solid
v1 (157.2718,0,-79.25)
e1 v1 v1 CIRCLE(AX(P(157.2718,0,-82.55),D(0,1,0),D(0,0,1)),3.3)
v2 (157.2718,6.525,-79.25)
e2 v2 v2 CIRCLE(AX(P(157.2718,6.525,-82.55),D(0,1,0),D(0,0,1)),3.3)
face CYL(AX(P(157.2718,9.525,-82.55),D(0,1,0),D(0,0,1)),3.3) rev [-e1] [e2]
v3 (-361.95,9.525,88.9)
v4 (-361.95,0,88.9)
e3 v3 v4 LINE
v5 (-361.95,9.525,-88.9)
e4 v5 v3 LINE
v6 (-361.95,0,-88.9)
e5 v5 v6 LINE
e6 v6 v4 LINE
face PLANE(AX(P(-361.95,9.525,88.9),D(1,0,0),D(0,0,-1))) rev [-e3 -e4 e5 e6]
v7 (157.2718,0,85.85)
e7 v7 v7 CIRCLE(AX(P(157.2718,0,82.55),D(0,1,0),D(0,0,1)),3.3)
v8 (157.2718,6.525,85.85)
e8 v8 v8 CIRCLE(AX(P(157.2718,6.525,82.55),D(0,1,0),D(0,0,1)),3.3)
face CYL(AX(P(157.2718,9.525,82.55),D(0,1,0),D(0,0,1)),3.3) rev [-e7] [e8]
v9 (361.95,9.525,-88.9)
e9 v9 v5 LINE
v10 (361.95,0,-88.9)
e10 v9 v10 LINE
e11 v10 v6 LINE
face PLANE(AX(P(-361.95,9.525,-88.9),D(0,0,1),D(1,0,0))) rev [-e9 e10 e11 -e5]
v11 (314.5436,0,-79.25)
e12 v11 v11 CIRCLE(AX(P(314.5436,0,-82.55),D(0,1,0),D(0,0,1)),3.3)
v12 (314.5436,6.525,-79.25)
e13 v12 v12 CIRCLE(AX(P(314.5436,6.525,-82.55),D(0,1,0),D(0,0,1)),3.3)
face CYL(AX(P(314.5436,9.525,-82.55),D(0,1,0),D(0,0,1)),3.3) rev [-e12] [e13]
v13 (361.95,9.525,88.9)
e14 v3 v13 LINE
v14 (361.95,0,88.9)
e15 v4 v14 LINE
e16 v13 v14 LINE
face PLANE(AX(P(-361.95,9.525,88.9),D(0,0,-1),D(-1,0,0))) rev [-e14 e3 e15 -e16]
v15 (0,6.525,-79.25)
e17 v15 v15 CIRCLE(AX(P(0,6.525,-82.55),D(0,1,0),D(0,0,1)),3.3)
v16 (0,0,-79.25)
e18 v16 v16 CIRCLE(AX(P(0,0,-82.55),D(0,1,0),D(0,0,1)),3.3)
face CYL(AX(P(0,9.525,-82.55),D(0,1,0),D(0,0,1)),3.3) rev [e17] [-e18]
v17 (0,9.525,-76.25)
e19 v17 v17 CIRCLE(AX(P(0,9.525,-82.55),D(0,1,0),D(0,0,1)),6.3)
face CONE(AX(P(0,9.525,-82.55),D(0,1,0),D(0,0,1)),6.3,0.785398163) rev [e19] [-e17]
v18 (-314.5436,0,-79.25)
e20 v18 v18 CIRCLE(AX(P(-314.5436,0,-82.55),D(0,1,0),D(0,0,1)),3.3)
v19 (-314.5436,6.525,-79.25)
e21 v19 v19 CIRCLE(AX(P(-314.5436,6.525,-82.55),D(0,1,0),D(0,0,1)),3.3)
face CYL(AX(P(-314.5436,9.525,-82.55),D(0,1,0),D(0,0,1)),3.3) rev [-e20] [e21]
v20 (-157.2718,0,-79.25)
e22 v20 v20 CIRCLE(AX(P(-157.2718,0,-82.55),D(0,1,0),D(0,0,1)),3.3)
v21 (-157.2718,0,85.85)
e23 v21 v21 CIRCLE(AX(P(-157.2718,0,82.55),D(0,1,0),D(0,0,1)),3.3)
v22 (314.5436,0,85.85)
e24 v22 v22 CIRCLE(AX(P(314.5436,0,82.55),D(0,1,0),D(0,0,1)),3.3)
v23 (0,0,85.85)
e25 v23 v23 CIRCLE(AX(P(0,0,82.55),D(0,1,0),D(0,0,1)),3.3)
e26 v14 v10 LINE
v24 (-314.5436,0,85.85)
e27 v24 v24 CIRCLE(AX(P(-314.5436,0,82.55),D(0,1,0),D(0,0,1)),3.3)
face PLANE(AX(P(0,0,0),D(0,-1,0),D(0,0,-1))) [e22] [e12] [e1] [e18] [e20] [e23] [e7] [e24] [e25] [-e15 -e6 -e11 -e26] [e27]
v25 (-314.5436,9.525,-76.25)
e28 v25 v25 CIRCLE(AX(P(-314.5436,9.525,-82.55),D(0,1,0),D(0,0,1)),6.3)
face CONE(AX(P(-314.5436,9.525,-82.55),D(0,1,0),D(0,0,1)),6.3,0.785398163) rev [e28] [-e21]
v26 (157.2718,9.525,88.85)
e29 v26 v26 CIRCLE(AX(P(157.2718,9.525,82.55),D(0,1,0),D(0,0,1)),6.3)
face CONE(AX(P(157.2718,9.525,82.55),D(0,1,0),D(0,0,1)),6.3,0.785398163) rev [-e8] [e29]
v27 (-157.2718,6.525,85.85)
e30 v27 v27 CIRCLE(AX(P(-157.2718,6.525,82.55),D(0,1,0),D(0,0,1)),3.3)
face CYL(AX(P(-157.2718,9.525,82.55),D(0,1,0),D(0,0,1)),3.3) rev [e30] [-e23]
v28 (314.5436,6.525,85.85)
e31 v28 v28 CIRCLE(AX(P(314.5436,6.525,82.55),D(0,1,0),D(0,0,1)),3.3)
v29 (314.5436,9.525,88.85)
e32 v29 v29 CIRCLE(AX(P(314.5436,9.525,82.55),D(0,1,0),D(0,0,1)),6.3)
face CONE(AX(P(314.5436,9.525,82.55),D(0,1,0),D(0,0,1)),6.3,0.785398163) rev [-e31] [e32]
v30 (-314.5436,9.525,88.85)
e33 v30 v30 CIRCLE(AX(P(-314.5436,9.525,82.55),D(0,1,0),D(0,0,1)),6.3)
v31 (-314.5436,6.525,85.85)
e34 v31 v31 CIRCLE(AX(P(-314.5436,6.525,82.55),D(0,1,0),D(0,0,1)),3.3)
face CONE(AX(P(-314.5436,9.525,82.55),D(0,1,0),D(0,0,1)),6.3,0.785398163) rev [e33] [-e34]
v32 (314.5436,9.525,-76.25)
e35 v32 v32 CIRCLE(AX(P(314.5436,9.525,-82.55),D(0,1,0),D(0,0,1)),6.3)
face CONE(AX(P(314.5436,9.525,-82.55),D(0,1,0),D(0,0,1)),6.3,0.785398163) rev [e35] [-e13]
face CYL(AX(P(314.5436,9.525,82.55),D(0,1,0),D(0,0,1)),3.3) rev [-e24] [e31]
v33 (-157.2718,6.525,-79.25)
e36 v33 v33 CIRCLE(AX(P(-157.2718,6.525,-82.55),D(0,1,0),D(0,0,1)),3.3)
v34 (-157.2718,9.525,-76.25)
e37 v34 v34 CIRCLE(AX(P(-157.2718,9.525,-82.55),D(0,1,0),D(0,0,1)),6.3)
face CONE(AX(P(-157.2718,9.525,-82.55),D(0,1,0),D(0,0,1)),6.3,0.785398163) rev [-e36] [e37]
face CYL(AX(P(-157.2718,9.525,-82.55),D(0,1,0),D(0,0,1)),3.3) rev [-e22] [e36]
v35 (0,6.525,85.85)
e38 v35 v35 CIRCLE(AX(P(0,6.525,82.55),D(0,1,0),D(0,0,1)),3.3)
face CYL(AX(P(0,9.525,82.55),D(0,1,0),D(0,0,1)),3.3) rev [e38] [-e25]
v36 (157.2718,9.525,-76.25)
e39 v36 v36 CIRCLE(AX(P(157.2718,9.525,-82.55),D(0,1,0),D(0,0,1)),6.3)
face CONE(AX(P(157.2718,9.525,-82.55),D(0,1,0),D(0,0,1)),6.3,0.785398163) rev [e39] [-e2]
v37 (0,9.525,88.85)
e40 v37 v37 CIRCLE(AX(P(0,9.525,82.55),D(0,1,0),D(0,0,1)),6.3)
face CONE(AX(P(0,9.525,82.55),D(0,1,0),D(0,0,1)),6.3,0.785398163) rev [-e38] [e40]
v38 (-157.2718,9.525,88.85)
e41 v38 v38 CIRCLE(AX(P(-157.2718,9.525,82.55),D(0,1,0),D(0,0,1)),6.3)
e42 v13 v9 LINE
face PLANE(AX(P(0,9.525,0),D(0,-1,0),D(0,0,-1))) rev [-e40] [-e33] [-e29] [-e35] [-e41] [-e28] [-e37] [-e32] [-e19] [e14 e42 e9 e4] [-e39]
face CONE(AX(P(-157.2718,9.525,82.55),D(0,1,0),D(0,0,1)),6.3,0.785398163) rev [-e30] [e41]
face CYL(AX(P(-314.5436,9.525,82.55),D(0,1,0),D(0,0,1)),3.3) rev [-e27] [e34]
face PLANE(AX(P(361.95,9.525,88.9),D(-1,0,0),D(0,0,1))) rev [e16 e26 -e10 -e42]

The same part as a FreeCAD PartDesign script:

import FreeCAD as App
import Part
import Sketcher

V = App.Vector
Q = App.Units.Quantity


def add_polygon(sketch, points):
    """Adds a closed chain of lines whose ends are joined by coincident constraints."""
    first, n = sketch.GeometryCount, len(points)
    for a, b in zip(points, points[1:] + points[:1]):
        sketch.addGeometry(Part.LineSegment(App.Vector(*a, 0), App.Vector(*b, 0)), False)
    for i in range(n):
        sketch.addConstraint(Sketcher.Constraint("Coincident", first + i, 2, first + (i + 1) % n, 1))

doc = App.newDocument("Part")
body = doc.addObject("PartDesign::Body", "Body")

# Sketch on XZ plane
sketch1 = body.newObject("Sketcher::SketchObject", "Sketch")
sketch1.AttachmentSupport = (doc.getObject("XZ_Plane"), [""])
sketch1.MapMode = "FlatFace"
add_polygon(sketch1, [(-362, -89), (-362, 89), (362, 89), (362, -89)])  # lines 0-3
sketch1.addConstraint([
    Sketcher.Constraint("Vertical", 0),
    Sketcher.Constraint("Horizontal", 1),
    Sketcher.Constraint("Vertical", 2),
    Sketcher.Constraint("Horizontal", 3),
    Sketcher.Constraint("Symmetric", 0, 2, 2, 2, -1, 1),
    Sketcher.Constraint("DistanceY", 0, 1, 0, 2, Q("7 in")),
    Sketcher.Constraint("DistanceX", 1, 1, 1, 2, Q("28.5 in")),
])
pad1 = body.newObject("PartDesign::Pad", "Pad")
pad1.Profile = sketch1
pad1.Length = Q("0.375 in")
pad1.Reversed = True

# Sketch on XZ plane
sketch2 = body.newObject("Sketcher::SketchObject", "Sketch001")
sketch2.AttachmentSupport = (doc.getObject("XZ_Plane"), [""])
sketch2.MapMode = "FlatFace"
sketch2.AttachmentOffset = App.Placement(V(0, 0, -0.375 * 25.4), App.Rotation())
sketch2.addGeometry([
    Part.Circle(V(314.5, -82.5, 0), V(0, 0, 1), 3.3),  # 0
    Part.Circle(V(-157.3, -82.5, 0), V(0, 0, 1), 3.3),  # 1
    Part.Circle(V(157.3, -82.5, 0), V(0, 0, 1), 3.3),  # 2
    Part.Circle(V(-157.3, 82.5, 0), V(0, 0, 1), 3.3),  # 3
    Part.Circle(V(157.3, 82.5, 0), V(0, 0, 1), 3.3),  # 4
    Part.Circle(V(314.5, 82.5, 0), V(0, 0, 1), 3.3),  # 5
    Part.Circle(V(-314.5, -82.5, 0), V(0, 0, 1), 3.3),  # 6
    Part.Circle(V(-314.5, 82.5, 0), V(0, 0, 1), 3.3),  # 7
    Part.Circle(V(0, 82.5, 0), V(0, 0, 1), 3.3),  # 8
    Part.Circle(V(0, -82.5, 0), V(0, 0, 1), 3.3),  # 9
], False)
sketch2.addConstraint([
    Sketcher.Constraint("Equal", 0, 1),
    Sketcher.Constraint("Equal", 1, 2),
    Sketcher.Constraint("Equal", 2, 3),
    Sketcher.Constraint("Equal", 3, 4),
    Sketcher.Constraint("Equal", 4, 5),
    Sketcher.Constraint("Equal", 5, 6),
    Sketcher.Constraint("Equal", 6, 7),
    Sketcher.Constraint("Equal", 7, 8),
    Sketcher.Constraint("Equal", 8, 9),
    Sketcher.Constraint("Symmetric", 2, 3, 3, 3, -1, 1),
    Sketcher.Constraint("Symmetric", 1, 3, 4, 3, -1, 1),
    Sketcher.Constraint("Symmetric", 5, 3, 6, 3, -1, 1),
    Sketcher.Constraint("Symmetric", 0, 3, 7, 3, -1, 1),
    Sketcher.Constraint("Symmetric", 8, 3, 9, 3, -1, 1),
    Sketcher.Constraint("Symmetric", 1, 3, 2, 3, -2),
    Sketcher.Constraint("Symmetric", 0, 3, 6, 3, -2),
    Sketcher.Constraint("PointOnObject", 8, 3, -2),
    Sketcher.Constraint("Horizontal", 0, 3, 1, 3),
    Sketcher.Constraint("Horizontal", 7, 3, 8, 3),
    Sketcher.Constraint("DistanceY", 1, 3, 3, 3, Q("6.5 in")),
    Sketcher.Constraint("Diameter", 0, Q("6.6 mm")),
    Sketcher.Constraint("DistanceX", -1, 1, 0, 3, Q("314.5436 mm")),
    Sketcher.Constraint("DistanceX", 1, 3, -1, 1, Q("157.2718 mm")),
])
doc.recompute()
hole = body.newObject("PartDesign::Hole", "Hole")
hole.Profile = sketch2
hole.ThreadType = "None"
hole.Diameter = 6.6
hole.DepthType = "ThroughAll"
hole.HoleCutType = "Countersink"
hole.HoleCutDiameter = 12.6
hole.HoleCutCountersinkAngle = 90
hole.Reversed = True

doc.recompute()
